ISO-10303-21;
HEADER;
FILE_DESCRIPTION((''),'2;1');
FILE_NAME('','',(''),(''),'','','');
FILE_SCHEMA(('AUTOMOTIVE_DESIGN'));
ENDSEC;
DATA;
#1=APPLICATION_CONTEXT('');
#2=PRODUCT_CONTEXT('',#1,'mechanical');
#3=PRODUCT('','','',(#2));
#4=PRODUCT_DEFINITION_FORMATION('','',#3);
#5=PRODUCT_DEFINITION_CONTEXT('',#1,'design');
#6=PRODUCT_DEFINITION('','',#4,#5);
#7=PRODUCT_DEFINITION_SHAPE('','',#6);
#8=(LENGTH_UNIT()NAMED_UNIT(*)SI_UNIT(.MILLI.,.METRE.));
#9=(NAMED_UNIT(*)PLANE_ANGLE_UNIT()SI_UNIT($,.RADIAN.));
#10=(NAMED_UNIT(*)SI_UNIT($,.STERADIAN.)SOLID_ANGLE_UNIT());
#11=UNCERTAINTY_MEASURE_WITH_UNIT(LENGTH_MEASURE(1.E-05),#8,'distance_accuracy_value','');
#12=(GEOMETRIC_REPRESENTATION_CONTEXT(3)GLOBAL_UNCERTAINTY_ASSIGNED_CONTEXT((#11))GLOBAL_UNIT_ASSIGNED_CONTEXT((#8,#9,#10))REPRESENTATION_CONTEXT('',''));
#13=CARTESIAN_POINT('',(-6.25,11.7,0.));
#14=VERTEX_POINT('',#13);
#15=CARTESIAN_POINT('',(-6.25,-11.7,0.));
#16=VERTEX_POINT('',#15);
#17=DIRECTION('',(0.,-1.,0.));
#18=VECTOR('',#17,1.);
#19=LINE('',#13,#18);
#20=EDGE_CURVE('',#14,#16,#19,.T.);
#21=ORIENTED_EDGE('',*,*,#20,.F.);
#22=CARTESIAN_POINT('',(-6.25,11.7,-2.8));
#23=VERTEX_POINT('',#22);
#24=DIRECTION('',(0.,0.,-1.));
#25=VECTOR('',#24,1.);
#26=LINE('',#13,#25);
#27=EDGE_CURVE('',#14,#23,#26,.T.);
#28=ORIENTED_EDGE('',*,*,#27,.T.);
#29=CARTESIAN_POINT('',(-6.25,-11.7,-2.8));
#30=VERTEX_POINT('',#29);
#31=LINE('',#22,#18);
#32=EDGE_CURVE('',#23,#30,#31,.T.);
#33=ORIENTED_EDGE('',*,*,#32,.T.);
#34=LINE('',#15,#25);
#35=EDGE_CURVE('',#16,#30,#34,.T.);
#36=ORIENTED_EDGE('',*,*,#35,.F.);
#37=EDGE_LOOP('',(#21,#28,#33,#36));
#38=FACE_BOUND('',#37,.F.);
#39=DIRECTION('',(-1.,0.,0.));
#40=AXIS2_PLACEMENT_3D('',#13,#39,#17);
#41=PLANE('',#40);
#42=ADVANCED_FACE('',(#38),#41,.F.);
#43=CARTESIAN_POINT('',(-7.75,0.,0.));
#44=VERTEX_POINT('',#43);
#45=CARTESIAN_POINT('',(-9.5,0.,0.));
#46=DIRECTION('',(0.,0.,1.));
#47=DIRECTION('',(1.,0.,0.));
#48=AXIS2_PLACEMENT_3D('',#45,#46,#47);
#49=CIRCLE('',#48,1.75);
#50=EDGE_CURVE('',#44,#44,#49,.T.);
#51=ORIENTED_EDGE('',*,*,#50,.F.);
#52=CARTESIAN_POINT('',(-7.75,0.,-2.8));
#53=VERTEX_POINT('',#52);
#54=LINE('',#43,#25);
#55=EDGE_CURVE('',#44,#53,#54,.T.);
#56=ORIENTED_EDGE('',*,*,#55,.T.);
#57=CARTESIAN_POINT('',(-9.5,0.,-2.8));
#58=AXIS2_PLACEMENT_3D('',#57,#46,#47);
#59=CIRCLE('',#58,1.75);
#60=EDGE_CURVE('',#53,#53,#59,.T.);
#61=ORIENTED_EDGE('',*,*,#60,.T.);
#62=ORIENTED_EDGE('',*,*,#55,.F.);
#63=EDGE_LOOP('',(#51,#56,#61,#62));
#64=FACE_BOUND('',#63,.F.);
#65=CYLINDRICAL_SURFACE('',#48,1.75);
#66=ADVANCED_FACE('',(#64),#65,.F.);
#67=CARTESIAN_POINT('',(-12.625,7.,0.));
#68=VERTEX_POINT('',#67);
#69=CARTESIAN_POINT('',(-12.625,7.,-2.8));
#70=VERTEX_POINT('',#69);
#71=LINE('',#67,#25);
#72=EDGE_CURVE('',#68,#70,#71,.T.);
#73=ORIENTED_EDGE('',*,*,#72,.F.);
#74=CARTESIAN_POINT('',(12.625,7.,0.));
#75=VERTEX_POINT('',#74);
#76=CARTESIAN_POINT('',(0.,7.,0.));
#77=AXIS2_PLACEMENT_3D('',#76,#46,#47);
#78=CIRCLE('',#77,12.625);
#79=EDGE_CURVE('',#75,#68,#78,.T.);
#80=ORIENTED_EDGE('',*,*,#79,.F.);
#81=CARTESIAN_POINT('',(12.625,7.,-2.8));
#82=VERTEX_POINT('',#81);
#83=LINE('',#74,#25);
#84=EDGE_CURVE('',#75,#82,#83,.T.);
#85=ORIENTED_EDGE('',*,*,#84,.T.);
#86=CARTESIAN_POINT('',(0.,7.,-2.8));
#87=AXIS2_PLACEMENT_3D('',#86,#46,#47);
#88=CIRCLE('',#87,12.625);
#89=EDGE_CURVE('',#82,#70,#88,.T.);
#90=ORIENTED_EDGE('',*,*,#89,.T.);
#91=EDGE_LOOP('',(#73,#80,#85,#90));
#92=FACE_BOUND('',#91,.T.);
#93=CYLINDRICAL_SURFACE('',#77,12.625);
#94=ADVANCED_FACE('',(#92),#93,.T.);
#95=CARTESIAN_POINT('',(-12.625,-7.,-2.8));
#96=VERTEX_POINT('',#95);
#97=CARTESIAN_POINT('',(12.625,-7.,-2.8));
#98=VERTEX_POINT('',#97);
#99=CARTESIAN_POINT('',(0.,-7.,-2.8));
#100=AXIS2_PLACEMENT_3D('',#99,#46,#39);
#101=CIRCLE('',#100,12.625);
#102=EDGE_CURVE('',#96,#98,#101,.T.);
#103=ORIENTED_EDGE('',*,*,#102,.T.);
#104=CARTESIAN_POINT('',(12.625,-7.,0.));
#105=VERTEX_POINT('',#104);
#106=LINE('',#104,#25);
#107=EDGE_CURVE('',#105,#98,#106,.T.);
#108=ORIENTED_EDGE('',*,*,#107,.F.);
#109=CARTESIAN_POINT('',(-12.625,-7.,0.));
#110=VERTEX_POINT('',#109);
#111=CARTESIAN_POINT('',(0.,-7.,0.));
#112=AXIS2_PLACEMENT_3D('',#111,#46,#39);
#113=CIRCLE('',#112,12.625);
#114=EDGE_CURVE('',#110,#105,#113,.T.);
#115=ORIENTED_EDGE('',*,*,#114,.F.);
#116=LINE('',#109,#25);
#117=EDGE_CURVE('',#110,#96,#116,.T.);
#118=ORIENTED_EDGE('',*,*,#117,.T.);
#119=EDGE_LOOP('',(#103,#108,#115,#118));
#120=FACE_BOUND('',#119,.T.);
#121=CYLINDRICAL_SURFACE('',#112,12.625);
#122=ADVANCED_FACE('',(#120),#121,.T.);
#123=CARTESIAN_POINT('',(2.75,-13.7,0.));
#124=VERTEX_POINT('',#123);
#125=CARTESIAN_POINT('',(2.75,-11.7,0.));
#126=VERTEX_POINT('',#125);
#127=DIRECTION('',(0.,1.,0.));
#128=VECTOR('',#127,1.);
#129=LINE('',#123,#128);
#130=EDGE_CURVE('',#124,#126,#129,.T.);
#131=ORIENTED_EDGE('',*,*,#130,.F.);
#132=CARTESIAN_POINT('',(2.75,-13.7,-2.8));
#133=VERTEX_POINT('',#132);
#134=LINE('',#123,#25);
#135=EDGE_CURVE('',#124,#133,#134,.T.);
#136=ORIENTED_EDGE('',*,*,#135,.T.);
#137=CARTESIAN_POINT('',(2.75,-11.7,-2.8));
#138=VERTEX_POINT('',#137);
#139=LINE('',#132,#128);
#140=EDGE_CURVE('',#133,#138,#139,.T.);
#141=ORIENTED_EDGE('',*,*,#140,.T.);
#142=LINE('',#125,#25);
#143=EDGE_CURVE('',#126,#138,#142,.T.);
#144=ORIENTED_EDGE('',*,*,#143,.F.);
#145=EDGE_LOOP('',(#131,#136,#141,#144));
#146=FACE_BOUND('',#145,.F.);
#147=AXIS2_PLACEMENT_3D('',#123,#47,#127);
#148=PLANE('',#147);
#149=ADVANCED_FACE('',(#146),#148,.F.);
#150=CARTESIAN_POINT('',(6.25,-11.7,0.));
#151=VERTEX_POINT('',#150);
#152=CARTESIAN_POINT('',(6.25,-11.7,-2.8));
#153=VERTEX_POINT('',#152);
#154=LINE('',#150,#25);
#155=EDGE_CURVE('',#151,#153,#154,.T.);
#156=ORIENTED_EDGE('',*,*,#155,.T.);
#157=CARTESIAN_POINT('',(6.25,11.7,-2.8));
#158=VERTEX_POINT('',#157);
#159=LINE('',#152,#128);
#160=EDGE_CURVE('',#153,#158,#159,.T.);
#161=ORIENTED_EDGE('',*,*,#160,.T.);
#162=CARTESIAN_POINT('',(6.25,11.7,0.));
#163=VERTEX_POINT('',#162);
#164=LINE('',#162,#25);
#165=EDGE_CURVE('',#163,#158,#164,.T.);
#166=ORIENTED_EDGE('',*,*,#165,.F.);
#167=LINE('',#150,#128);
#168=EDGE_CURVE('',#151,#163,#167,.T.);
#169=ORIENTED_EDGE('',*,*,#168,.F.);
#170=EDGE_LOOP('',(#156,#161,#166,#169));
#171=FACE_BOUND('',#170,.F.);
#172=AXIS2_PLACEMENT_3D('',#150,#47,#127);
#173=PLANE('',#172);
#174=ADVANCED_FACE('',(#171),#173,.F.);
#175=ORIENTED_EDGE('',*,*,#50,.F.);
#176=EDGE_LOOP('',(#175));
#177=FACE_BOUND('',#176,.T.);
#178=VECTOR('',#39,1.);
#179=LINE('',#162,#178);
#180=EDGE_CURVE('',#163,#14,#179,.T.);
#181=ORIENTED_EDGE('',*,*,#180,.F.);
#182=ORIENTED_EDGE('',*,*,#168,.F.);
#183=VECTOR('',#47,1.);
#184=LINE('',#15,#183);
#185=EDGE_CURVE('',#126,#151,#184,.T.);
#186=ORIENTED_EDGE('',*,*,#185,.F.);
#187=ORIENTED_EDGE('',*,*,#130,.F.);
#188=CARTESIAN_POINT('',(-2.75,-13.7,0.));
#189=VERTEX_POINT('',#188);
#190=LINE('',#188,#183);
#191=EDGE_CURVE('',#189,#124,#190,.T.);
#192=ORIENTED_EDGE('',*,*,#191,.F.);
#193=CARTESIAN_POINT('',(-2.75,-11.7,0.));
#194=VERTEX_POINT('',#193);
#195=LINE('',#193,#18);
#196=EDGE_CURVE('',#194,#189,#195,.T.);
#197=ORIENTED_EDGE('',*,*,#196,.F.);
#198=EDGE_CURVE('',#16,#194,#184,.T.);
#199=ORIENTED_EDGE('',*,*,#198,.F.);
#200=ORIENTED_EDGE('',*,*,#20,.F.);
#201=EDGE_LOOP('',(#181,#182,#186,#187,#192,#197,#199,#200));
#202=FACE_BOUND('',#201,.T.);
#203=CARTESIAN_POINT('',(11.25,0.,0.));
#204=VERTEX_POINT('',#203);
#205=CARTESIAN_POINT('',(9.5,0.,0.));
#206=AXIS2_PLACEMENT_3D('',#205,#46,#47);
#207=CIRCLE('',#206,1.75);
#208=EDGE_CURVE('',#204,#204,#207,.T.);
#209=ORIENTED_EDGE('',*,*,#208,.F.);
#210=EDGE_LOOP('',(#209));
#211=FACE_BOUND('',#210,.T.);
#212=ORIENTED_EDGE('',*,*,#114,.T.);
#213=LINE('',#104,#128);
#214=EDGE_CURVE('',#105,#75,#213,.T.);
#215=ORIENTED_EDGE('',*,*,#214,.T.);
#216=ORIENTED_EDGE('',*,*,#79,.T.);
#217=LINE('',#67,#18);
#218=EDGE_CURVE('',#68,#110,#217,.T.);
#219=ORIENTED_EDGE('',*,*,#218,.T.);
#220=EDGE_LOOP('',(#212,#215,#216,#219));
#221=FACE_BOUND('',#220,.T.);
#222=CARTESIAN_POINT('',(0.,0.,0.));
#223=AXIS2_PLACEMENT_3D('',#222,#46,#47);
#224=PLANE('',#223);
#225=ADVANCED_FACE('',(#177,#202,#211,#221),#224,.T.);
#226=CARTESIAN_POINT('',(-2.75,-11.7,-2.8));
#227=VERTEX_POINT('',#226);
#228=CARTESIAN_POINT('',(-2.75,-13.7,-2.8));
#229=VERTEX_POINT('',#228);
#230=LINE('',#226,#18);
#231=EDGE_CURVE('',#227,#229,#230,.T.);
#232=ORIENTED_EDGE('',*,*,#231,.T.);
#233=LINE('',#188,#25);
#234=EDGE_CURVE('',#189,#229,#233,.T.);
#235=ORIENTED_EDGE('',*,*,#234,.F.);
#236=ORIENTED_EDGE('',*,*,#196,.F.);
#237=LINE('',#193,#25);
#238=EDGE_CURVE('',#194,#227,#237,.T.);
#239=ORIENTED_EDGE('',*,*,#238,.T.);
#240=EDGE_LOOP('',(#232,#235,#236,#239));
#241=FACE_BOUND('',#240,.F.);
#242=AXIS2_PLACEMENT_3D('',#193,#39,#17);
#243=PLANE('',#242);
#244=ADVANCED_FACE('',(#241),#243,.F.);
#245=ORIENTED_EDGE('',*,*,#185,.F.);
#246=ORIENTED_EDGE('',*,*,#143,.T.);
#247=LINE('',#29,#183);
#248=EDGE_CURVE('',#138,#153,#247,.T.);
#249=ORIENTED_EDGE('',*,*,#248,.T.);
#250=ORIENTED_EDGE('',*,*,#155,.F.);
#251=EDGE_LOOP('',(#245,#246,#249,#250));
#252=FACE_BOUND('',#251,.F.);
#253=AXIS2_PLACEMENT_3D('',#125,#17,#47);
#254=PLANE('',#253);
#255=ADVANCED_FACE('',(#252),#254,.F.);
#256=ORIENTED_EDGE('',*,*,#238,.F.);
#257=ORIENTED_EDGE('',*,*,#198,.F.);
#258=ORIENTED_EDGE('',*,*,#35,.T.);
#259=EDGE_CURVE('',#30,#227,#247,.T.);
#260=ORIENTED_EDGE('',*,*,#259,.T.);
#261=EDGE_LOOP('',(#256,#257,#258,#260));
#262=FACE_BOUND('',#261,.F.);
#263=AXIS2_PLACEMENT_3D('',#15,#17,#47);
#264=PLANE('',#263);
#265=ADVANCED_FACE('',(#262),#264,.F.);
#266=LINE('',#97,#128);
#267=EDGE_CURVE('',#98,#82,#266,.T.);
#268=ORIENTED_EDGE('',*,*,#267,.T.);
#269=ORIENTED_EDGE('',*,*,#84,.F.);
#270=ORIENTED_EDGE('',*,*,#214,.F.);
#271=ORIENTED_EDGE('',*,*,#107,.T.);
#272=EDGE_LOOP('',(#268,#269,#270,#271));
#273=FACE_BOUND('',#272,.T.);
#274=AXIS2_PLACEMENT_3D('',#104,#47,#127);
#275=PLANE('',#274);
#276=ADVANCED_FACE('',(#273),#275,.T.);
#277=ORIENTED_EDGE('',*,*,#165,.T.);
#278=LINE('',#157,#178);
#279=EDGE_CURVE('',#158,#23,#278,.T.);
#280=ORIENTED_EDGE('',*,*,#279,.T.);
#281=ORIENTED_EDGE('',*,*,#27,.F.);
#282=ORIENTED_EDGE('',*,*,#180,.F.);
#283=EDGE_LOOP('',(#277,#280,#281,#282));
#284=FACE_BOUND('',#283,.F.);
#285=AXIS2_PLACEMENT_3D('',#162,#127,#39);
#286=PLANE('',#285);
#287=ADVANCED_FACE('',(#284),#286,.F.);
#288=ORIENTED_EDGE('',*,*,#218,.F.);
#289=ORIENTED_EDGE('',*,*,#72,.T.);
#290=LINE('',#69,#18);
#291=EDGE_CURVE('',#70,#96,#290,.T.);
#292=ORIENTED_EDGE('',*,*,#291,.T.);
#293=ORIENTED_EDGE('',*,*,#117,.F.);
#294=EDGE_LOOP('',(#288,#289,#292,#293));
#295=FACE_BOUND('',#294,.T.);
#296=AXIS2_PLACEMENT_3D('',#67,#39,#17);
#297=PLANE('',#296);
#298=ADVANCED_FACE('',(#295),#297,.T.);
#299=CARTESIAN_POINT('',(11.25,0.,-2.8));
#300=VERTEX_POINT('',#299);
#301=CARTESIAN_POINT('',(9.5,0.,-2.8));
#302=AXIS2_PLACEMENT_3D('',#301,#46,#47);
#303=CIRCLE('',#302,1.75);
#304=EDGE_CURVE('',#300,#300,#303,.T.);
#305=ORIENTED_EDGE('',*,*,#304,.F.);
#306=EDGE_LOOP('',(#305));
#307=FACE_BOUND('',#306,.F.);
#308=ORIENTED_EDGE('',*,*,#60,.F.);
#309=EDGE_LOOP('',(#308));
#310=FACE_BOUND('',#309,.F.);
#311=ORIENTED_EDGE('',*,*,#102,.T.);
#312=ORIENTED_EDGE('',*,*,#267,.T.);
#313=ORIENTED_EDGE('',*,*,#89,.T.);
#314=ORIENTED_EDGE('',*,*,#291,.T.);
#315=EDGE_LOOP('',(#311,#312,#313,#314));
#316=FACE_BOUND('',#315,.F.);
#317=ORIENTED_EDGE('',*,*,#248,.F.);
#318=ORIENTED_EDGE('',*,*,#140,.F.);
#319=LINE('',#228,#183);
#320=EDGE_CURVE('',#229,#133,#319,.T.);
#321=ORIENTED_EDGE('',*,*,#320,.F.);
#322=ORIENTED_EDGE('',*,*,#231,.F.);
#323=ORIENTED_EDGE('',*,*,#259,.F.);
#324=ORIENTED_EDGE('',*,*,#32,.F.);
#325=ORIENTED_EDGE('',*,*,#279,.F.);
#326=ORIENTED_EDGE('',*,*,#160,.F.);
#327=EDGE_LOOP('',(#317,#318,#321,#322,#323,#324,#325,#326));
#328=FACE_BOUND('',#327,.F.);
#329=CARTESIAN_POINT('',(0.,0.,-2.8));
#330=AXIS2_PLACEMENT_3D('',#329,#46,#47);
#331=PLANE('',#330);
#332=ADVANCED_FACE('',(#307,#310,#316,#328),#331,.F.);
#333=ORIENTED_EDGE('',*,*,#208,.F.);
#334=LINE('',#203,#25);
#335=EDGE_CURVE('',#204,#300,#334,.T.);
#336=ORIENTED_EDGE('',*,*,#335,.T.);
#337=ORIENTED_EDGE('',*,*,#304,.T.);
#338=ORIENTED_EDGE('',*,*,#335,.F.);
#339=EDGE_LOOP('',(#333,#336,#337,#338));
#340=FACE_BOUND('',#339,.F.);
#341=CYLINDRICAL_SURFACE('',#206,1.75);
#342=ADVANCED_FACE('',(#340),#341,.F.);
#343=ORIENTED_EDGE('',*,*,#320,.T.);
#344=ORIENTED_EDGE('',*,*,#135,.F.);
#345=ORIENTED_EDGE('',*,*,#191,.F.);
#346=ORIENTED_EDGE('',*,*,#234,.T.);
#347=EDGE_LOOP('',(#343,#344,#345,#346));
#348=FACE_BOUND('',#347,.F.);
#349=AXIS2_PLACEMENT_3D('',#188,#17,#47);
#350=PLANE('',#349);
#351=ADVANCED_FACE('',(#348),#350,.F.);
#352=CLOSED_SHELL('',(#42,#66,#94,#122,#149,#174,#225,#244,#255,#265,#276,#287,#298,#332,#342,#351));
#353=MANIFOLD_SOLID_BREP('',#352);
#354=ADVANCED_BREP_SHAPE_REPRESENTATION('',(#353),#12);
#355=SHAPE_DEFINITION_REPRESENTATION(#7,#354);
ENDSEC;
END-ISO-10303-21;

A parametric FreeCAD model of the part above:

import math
import FreeCAD as App
import Part
import Sketcher
from FreeCAD import Vector


def add_polygon(sketch, points):
    """Adds a closed chain of lines whose ends are joined by coincident constraints."""
    first, n = sketch.GeometryCount, len(points)
    for a, b in zip(points, points[1:] + points[:1]):
        sketch.addGeometry(Part.LineSegment(App.Vector(*a, 0), App.Vector(*b, 0)), False)
    for i in range(n):
        sketch.addConstraint(Sketcher.Constraint("Coincident", first + i, 2, first + (i + 1) % n, 1))

doc = App.newDocument("Part")
body = doc.addObject("PartDesign::Body", "Body")

sketch1 = body.newObject("Sketcher::SketchObject", "Sketch")
sketch1.AttachmentSupport = (doc.getObject("XY_Plane"), [""])
sketch1.MapMode = "FlatFace"
sketch1.addGeometry(Part.ArcOfCircle(Part.Circle(Vector(0, -7, 0), Vector(0, 0, 1), 12.6), math.radians(180), math.radians(360)), False)
sketch1.addGeometry(Part.LineSegment(Vector(12.6, -7, 0), Vector(12.6, 7, 0)), False)
sketch1.addGeometry(Part.ArcOfCircle(Part.Circle(Vector(0, 7, 0), Vector(0, 0, 1), 12.6), math.radians(0), math.radians(180)), False)
sketch1.addGeometry(Part.LineSegment(Vector(-12.6, 7, 0), Vector(-12.6, -7, 0)), False)
add_polygon(sketch1, [(-2.8, -11.7), (-6.2, -11.7), (-6.2, 11.7), (6.2, 11.7), (6.2, -11.7), (2.8, -11.7), (2.8, -13.7), (-2.8, -13.7)])
sketch1.addGeometry(Part.Circle(Vector(-9.5, 0, 0), Vector(0, 0, 1), 1.8), False)
sketch1.addGeometry(Part.Circle(Vector(9.5, 0, 0), Vector(0, 0, 1), 1.8), False)
sketch1.addConstraint([
    Sketcher.Constraint("Tangent", 0, 2, 1, 1),
    Sketcher.Constraint("Tangent", 1, 2, 2, 1),
    Sketcher.Constraint("Tangent", 2, 2, 3, 1),
    Sketcher.Constraint("Tangent", 3, 2, 0, 1),
    Sketcher.Constraint("Vertical", 1),
    Sketcher.Constraint("Vertical", 3),
    Sketcher.Constraint("Horizontal", 4),
    Sketcher.Constraint("Vertical", 5),
    Sketcher.Constraint("Horizontal", 6),
    Sketcher.Constraint("Vertical", 7),
    Sketcher.Constraint("Horizontal", 8),
    Sketcher.Constraint("Vertical", 9),
    Sketcher.Constraint("Horizontal", 10),
    Sketcher.Constraint("Vertical", 11),
    Sketcher.Constraint("Equal", 12, 13),
    Sketcher.Constraint("Symmetric", 0, 3, 2, 3, -1, 1),
    Sketcher.Constraint("Symmetric", 12, 3, 13, 3, -1, 1),
    Sketcher.Constraint("Symmetric", 4, 2, 6, 2, -1, 1),
    Sketcher.Constraint("Symmetric", 8, 2, 11, 2, -2),
    Sketcher.Constraint("PointOnObject", 12, 3, -1),
    Sketcher.Constraint("Diameter", 12, 3.5),
    Sketcher.Constraint("DistanceY", 1, 1, 1, 2, 14.0),
    Sketcher.Constraint("DistanceY", 9, 2, 9, 1, 2.0),
    Sketcher.Constraint("DistanceX", 4, 2, 4, 1, 3.5),
    Sketcher.Constraint("DistanceX", 6, 1, 6, 2, 12.5),
    Sketcher.Constraint("DistanceY", 5, 1, 5, 2, 23.4),
    Sketcher.Constraint("Radius", 0, 12.625),
    Sketcher.Constraint("DistanceX", 12, 3, 13, 3, 19.0),
])
pad1 = body.newObject("PartDesign::Pad", "Pad")
pad1.Profile = sketch1
pad1.Length = 2.8
pad1.Reversed = True

doc.recompute()
